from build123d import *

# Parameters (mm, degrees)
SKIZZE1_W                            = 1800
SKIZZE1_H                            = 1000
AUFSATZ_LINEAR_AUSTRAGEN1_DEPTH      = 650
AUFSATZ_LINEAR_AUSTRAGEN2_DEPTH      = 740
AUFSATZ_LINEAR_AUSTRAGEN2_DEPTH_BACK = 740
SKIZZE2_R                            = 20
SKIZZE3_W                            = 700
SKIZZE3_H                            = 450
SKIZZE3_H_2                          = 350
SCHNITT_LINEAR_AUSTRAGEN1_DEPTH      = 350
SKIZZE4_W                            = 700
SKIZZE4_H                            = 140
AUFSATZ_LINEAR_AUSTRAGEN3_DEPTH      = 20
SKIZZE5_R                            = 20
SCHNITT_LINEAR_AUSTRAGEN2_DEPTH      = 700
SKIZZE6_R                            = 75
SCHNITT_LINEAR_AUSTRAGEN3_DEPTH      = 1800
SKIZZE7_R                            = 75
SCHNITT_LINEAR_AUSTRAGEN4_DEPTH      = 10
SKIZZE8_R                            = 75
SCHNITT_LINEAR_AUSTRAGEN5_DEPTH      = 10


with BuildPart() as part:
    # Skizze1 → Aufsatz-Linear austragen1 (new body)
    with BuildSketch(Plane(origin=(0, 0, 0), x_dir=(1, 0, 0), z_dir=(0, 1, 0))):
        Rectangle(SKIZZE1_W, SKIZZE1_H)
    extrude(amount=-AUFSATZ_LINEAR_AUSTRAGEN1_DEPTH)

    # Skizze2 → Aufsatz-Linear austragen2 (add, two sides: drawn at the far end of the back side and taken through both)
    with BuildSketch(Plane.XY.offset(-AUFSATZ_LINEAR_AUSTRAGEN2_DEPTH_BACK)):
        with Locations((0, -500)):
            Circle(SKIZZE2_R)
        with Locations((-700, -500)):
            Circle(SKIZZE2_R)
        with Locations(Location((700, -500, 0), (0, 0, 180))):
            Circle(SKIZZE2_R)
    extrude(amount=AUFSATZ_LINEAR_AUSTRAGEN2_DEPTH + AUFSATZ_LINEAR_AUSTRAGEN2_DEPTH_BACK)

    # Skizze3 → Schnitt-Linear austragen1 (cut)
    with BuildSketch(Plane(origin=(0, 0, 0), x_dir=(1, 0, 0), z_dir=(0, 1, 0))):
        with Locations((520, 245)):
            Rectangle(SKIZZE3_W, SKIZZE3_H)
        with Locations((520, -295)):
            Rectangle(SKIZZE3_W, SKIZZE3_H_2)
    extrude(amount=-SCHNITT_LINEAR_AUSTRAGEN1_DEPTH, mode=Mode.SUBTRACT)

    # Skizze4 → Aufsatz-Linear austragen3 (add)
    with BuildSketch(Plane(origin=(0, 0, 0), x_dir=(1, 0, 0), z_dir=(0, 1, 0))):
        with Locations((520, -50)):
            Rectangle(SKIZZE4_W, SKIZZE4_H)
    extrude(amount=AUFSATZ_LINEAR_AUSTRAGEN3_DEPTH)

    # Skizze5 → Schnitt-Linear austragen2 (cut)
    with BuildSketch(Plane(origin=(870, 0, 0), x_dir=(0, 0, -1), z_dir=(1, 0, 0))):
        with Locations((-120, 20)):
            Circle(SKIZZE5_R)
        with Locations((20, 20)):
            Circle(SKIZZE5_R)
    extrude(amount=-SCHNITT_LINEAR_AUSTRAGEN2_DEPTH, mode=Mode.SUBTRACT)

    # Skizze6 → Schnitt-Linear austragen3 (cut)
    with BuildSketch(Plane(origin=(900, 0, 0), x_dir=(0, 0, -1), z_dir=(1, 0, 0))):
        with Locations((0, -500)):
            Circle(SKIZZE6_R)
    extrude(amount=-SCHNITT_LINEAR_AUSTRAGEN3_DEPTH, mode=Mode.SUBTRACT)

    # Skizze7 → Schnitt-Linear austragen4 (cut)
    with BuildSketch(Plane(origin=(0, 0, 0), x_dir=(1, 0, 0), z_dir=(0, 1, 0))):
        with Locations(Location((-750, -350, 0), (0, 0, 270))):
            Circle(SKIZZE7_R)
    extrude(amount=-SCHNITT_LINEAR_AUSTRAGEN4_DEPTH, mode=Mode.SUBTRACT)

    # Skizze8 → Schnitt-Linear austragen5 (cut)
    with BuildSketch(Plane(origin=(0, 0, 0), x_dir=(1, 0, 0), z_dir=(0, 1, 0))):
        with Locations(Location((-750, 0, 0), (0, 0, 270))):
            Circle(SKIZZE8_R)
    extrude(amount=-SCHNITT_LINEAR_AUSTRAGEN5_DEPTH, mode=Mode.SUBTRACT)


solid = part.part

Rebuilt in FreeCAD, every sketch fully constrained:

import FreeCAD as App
import Part
import Sketcher
from FreeCAD import Vector
Q = App.Units.Quantity


def add_polygon(sketch, points):
    """Adds a closed chain of lines whose ends are joined by coincident constraints."""
    first, n = sketch.GeometryCount, len(points)
    for a, b in zip(points, points[1:] + points[:1]):
        sketch.addGeometry(Part.LineSegment(App.Vector(*a, 0), App.Vector(*b, 0)), False)
    for i in range(n):
        sketch.addConstraint(Sketcher.Constraint("Coincident", first + i, 2, first + (i + 1) % n, 1))

doc = App.newDocument("Part")
body = doc.addObject("PartDesign::Body", "Body")

sketch1 = body.newObject("Sketcher::SketchObject", "Sketch")
sketch1.AttachmentSupport = (doc.getObject("XZ_Plane"), [""])
sketch1.MapMode = "FlatFace"
add_polygon(sketch1, [(-900, -500), (-900, 500), (900, 500), (900, -500)])
sketch1.addConstraint(Sketcher.Constraint("Vertical", 0))
sketch1.addConstraint(Sketcher.Constraint("Horizontal", 1))
sketch1.addConstraint(Sketcher.Constraint("Vertical", 2))
sketch1.addConstraint(Sketcher.Constraint("Horizontal", 3))
sketch1.addConstraint(Sketcher.Constraint("Symmetric", 0, 2, 2, 2, -1, 1))
sketch1.addConstraint(Sketcher.Constraint("DistanceX", 1, 1, 1, 2, Q("1800 mm")))
sketch1.addConstraint(Sketcher.Constraint("DistanceY", 0, 1, 0, 2, Q("1000 mm")))
pad1 = body.newObject("PartDesign::Pad", "Pad")
pad1.Profile = sketch1
pad1.Length = 650

sketch2 = body.newObject("Sketcher::SketchObject", "Sketch001")
sketch2.AttachmentSupport = (doc.getObject("XY_Plane"), [""])
sketch2.MapMode = "FlatFace"
sketch2.addGeometry(Part.Circle(Vector(0, -500, 0), Vector(0, 0, 1), 20), False)
sketch2.addGeometry(Part.Circle(Vector(-700, -500, 0), Vector(0, 0, 1), 20), False)
sketch2.addGeometry(Part.Circle(Vector(700, -500, 0), Vector(0, 0, 1), 20), False)
sketch2.addConstraint(Sketcher.Constraint("Equal", 0, 1))
sketch2.addConstraint(Sketcher.Constraint("Equal", 1, 2))
sketch2.addConstraint(Sketcher.Constraint("Symmetric", 1, 3, 2, 3, -2))
sketch2.addConstraint(Sketcher.Constraint("PointOnObject", 0, 3, -2))
sketch2.addConstraint(Sketcher.Constraint("Horizontal", 0, 3, 1, 3))
sketch2.addConstraint(Sketcher.Constraint("Diameter", 0, Q("40 mm")))
sketch2.addConstraint(Sketcher.Constraint("DistanceY", 0, 3, -1, 1, Q("500 mm")))
sketch2.addConstraint(Sketcher.Constraint("DistanceX", 1, 3, -1, 1, Q("700 mm")))
pad2 = body.newObject("PartDesign::Pad", "Pad001")
pad2.Profile = sketch2
pad2.Type = "TwoLengths"
pad2.Length = 740
pad2.Length2 = 740

sketch3 = body.newObject("Sketcher::SketchObject", "Sketch002")
sketch3.AttachmentSupport = (doc.getObject("XZ_Plane"), [""])
sketch3.MapMode = "FlatFace"
add_polygon(sketch3, [(170, -470), (170, -20), (870, -20), (870, -470)])
add_polygon(sketch3, [(170, 120), (170, 470), (870, 470), (870, 120)])
sketch3.addConstraint(Sketcher.Constraint("Vertical", 0))
sketch3.addConstraint(Sketcher.Constraint("Horizontal", 1))
sketch3.addConstraint(Sketcher.Constraint("Vertical", 2))
sketch3.addConstraint(Sketcher.Constraint("Horizontal", 3))
sketch3.addConstraint(Sketcher.Constraint("Vertical", 4))
sketch3.addConstraint(Sketcher.Constraint("Horizontal", 5))
sketch3.addConstraint(Sketcher.Constraint("Vertical", 6))
sketch3.addConstraint(Sketcher.Constraint("Horizontal", 7))
sketch3.addConstraint(Sketcher.Constraint("Symmetric", 3, 2, 4, 2, -1))
sketch3.addConstraint(Sketcher.Constraint("Vertical", 2, 2, 5, 2))
sketch3.addConstraint(Sketcher.Constraint("DistanceX", 1, 1, 1, 2, Q("700 mm")))
sketch3.addConstraint(Sketcher.Constraint("DistanceY", 0, 1, 0, 2, Q("450 mm")))
sketch3.addConstraint(Sketcher.Constraint("DistanceY", 4, 1, 4, 2, Q("350 mm")))
sketch3.addConstraint(Sketcher.Constraint("DistanceX", -1, 1, 0, 2, Q("170 mm")))
sketch3.addConstraint(Sketcher.Constraint("DistanceY", 0, 2, -1, 1, Q("20 mm")))
pocket1 = body.newObject("PartDesign::Pocket", "Pocket")
pocket1.Profile = sketch3
pocket1.Length = 350
pocket1.Reversed = True

sketch4 = body.newObject("Sketcher::SketchObject", "Sketch003")
sketch4.AttachmentSupport = (doc.getObject("XZ_Plane"), [""])
sketch4.MapMode = "FlatFace"
add_polygon(sketch4, [(170, -20), (170, 120), (870, 120), (870, -20)])
sketch4.addConstraint(Sketcher.Constraint("Vertical", 0))
sketch4.addConstraint(Sketcher.Constraint("Horizontal", 1))
sketch4.addConstraint(Sketcher.Constraint("Vertical", 2))
sketch4.addConstraint(Sketcher.Constraint("Horizontal", 3))
sketch4.addConstraint(Sketcher.Constraint("DistanceX", 1, 1, 1, 2, Q("700 mm")))
sketch4.addConstraint(Sketcher.Constraint("DistanceY", 0, 1, 0, 2, Q("140 mm")))
sketch4.addConstraint(Sketcher.Constraint("DistanceX", -1, 1, 0, 2, Q("170 mm")))
sketch4.addConstraint(Sketcher.Constraint("DistanceY", -1, 1, 0, 2, Q("120 mm")))
pad3 = body.newObject("PartDesign::Pad", "Pad002")
pad3.Profile = sketch4
pad3.Length = 20
pad3.Reversed = True

sketch5 = body.newObject("Sketcher::SketchObject", "Sketch004")
sketch5.AttachmentSupport = (doc.getObject("YZ_Plane"), [""])
sketch5.MapMode = "FlatFace"
sketch5.AttachmentOffset = App.Placement(Vector(0, 0, 870), App.Rotation())
sketch5.addGeometry(Part.Circle(Vector(20, 120, 0), Vector(0, 0, 1), 20), False)
sketch5.addGeometry(Part.Circle(Vector(20, -20, 0), Vector(0, 0, 1), 20), False)
sketch5.addConstraint(Sketcher.Constraint("Equal", 0, 1))
sketch5.addConstraint(Sketcher.Constraint("Vertical", 0, 3, 1, 3))
sketch5.addConstraint(Sketcher.Constraint("Diameter", 0, Q("40 mm")))
sketch5.addConstraint(Sketcher.Constraint("DistanceX", -1, 1, 0, 3, Q("20 mm")))
sketch5.addConstraint(Sketcher.Constraint("DistanceY", -1, 1, 0, 3, Q("120 mm")))
sketch5.addConstraint(Sketcher.Constraint("DistanceY", 1, 3, -1, 1, Q("20 mm")))
pocket2 = body.newObject("PartDesign::Pocket", "Pocket001")
pocket2.Profile = sketch5
pocket2.Length = 700

sketch6 = body.newObject("Sketcher::SketchObject", "Sketch005")
sketch6.AttachmentSupport = (doc.getObject("YZ_Plane"), [""])
sketch6.MapMode = "FlatFace"
sketch6.AttachmentOffset = App.Placement(Vector(0, 0, 900), App.Rotation())
sketch6.addGeometry(Part.Circle(Vector(-500, 0, 0), Vector(0, 0, 1), 75), False)
sketch6.addConstraint(Sketcher.Constraint("PointOnObject", 0, 3, -1))
sketch6.addConstraint(Sketcher.Constraint("Diameter", 0, Q("150 mm")))
sketch6.addConstraint(Sketcher.Constraint("DistanceX", 0, 3, -1, 1, Q("500 mm")))
pocket3 = body.newObject("PartDesign::Pocket", "Pocket002")
pocket3.Profile = sketch6
pocket3.Length = 1800

sketch7 = body.newObject("Sketcher::SketchObject", "Sketch006")
sketch7.AttachmentSupport = (doc.getObject("XZ_Plane"), [""])
sketch7.MapMode = "FlatFace"
sketch7.addGeometry(Part.Circle(Vector(-750, 350, 0), Vector(0, 0, 1), 75), False)
sketch7.addConstraint(Sketcher.Constraint("Diameter", 0, Q("150 mm")))
sketch7.addConstraint(Sketcher.Constraint("DistanceX", 0, 3, -1, 1, Q("750 mm")))
sketch7.addConstraint(Sketcher.Constraint("DistanceY", -1, 1, 0, 3, Q("350 mm")))
pocket4 = body.newObject("PartDesign::Pocket", "Pocket003")
pocket4.Profile = sketch7
pocket4.Length = 10
pocket4.Reversed = True

sketch8 = body.newObject("Sketcher::SketchObject", "Sketch007")
sketch8.AttachmentSupport = (doc.getObject("XZ_Plane"), [""])
sketch8.MapMode = "FlatFace"
sketch8.addGeometry(Part.Circle(Vector(-750, 0, 0), Vector(0, 0, 1), 75), False)
sketch8.addConstraint(Sketcher.Constraint("PointOnObject", 0, 3, -1))
sketch8.addConstraint(Sketcher.Constraint("Diameter", 0, Q("150 mm")))
sketch8.addConstraint(Sketcher.Constraint("DistanceX", 0, 3, -1, 1, Q("750 mm")))
pocket5 = body.newObject("PartDesign::Pocket", "Pocket004")
pocket5.Profile = sketch8
pocket5.Length = 10
pocket5.Reversed = True

doc.recompute()
